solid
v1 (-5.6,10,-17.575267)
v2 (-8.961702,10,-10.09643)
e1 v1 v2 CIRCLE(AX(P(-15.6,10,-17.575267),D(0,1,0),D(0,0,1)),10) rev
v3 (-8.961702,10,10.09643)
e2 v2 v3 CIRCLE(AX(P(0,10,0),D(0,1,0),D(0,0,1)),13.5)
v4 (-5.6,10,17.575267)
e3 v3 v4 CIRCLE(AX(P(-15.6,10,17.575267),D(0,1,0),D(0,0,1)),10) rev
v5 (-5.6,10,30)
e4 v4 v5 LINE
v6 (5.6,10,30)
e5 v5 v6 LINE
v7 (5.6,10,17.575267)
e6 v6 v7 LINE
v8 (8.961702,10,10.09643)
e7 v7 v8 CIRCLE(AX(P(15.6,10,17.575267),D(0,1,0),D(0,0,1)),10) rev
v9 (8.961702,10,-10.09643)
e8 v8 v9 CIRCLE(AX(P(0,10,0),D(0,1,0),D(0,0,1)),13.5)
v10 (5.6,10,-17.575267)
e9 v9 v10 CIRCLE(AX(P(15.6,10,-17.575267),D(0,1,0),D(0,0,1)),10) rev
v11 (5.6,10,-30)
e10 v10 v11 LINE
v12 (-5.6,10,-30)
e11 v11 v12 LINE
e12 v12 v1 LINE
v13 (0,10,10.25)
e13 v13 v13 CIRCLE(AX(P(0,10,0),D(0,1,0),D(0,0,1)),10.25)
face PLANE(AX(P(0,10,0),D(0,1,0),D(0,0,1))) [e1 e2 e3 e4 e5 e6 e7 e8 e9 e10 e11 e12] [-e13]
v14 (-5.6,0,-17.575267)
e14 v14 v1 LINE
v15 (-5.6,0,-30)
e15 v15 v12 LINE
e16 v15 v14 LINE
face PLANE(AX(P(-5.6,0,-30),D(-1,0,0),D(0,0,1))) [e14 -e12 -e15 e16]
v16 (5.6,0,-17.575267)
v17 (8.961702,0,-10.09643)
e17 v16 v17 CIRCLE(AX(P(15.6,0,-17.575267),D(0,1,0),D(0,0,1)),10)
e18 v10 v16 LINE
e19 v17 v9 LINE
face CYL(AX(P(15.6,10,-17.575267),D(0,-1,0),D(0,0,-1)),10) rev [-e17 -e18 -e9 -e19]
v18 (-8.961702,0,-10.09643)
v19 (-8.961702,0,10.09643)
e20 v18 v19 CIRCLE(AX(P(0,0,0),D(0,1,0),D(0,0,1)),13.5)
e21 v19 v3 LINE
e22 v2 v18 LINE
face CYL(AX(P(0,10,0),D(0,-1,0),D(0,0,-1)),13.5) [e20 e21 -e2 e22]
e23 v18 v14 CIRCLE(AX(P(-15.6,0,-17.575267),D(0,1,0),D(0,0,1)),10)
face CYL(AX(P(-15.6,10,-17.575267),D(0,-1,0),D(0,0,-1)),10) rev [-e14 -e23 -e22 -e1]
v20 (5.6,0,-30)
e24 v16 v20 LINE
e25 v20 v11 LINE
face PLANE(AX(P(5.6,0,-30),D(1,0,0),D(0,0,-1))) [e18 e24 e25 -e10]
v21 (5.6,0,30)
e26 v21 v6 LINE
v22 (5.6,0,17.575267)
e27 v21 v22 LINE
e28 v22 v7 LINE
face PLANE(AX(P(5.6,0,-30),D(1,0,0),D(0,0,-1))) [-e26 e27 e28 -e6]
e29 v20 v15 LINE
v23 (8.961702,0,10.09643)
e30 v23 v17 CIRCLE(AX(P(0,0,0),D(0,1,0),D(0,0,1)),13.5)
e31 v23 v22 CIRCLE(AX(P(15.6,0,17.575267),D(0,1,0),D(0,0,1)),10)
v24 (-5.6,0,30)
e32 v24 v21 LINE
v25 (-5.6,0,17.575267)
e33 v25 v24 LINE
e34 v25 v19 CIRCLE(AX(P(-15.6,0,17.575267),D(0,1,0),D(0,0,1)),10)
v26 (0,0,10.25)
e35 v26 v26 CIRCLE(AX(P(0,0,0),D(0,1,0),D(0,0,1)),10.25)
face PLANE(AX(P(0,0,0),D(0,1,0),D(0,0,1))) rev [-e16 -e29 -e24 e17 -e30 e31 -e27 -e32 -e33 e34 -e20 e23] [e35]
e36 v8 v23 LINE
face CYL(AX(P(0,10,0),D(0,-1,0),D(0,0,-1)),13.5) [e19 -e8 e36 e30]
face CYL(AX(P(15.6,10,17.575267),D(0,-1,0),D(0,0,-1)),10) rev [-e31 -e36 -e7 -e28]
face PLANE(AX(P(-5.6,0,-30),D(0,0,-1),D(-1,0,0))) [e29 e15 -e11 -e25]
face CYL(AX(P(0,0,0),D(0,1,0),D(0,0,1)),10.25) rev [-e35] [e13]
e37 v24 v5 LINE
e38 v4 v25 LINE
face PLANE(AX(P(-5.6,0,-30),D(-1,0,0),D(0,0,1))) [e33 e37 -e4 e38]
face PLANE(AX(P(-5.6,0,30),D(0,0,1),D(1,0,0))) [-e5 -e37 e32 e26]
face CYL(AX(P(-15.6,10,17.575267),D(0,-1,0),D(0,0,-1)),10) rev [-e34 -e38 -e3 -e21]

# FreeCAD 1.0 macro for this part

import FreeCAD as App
import Part
import Sketcher


def edges_at(feature, points):
    """Names of the edges that pass closest to the given points."""
    edges = feature.Shape.Edges
    near = lambda p: min(range(len(edges)), key=lambda i: edges[i].distToShape(Part.Vertex(*p))[0])
    return sorted({f"Edge{near(p) + 1}" for p in points})

doc = App.newDocument("Part")
params = doc.addObject("Spreadsheet::Sheet", "Params")
for row, (alias, value) in enumerate([
    ("sketch1_diameter", "27 mm"),
    ("pad1_length", "10 mm"),
    ("sketch2_height", "60 mm"),
    ("sketch2_width", "11.2 mm"),
    ("pad2_length", "10 mm"),
    ("sketch3_diameter", "20.5 mm"),
    ("pocket1_length", "10 mm"),
    ("fillet_radius", "10 mm"),
], start=1):
    params.set(f"A{row}", alias)
    params.set(f"B{row}", "=" + value)
    params.setAlias(f"B{row}", alias)

body = doc.addObject("PartDesign::Body", "Body")

sketch1 = doc.addObject("Sketcher::SketchObject", "Sketch")
body.addObject(sketch1)
sketch1.AttachmentSupport = (doc.XZ_Plane, [""])
sketch1.MapMode = "FlatFace"
sketch1.addGeometry(Part.Circle(App.Vector(0, 0, 0), App.Vector(0, 0, 1), 14), False)
sketch1.addConstraint([
    Sketcher.Constraint("Coincident", 0, 3, -1, 1),
    Sketcher.Constraint("Diameter", 0, 27.0),
])
sketch1.setExpression("Constraints[1]", "Params.sketch1_diameter")
pad1 = doc.addObject("PartDesign::Pad", "Pad")
body.addObject(pad1)
pad1.Profile = sketch1
pad1.setExpression("Length", "Params.pad1_length")
pad1.Reversed = True

sketch2 = doc.addObject("Sketcher::SketchObject", "Sketch001")
body.addObject(sketch2)
sketch2.AttachmentSupport = (doc.XZ_Plane, [""])
sketch2.MapMode = "FlatFace"
sketch2.AttachmentOffset = App.Placement(App.Vector(0, 0, -10), App.Rotation())
sketch2.addGeometry([
    Part.LineSegment(App.Vector(-6, -30, 0), App.Vector(-6, 30, 0)),
    Part.LineSegment(App.Vector(-6, 30, 0), App.Vector(6, 30, 0)),
    Part.LineSegment(App.Vector(6, 30, 0), App.Vector(6, -30, 0)),
    Part.LineSegment(App.Vector(6, -30, 0), App.Vector(-6, -30, 0)),
], False)
sketch2.addConstraint([
    Sketcher.Constraint("Coincident", 0, 2, 1, 1),
    Sketcher.Constraint("Coincident", 1, 2, 2, 1),
    Sketcher.Constraint("Coincident", 2, 2, 3, 1),
    Sketcher.Constraint("Coincident", 3, 2, 0, 1),
    Sketcher.Constraint("Vertical", 0),
    Sketcher.Constraint("Horizontal", 1),
    Sketcher.Constraint("Vertical", 2),
    Sketcher.Constraint("Horizontal", 3),
    Sketcher.Constraint("Symmetric", 0, 2, 2, 2, -1, 1),
    Sketcher.Constraint("DistanceY", 0, 1, 0, 2, 60.0),
    Sketcher.Constraint("DistanceX", 1, 1, 1, 2, 11.2),
])
sketch2.setExpression("Constraints[9]", "Params.sketch2_height")
sketch2.setExpression("Constraints[10]", "Params.sketch2_width")
pad2 = doc.addObject("PartDesign::Pad", "Pad001")
body.addObject(pad2)
pad2.Profile = sketch2
pad2.setExpression("Length", "Params.pad2_length")

sketch3 = doc.addObject("Sketcher::SketchObject", "Sketch002")
body.addObject(sketch3)
sketch3.AttachmentSupport = (doc.XZ_Plane, [""])
sketch3.MapMode = "FlatFace"
sketch3.AttachmentOffset = App.Placement(App.Vector(0, 0, -10), App.Rotation())
sketch3.addGeometry(Part.Circle(App.Vector(0, 0, 0), App.Vector(0, 0, 1), 10), False)
sketch3.addConstraint([
    Sketcher.Constraint("Coincident", 0, 3, -1, 1),
    Sketcher.Constraint("Diameter", 0, 20.5),
])
sketch3.setExpression("Constraints[1]", "Params.sketch3_diameter")
pocket1 = doc.addObject("PartDesign::Pocket", "Pocket")
body.addObject(pocket1)
pocket1.Profile = sketch3
pocket1.setExpression("Length", "Params.pocket1_length")
pocket1.Reversed = True
doc.recompute()

fillet = doc.addObject("PartDesign::Fillet", "Fillet")
body.addObject(fillet)
fillet.Base = (pocket1, edges_at(pocket1, [
    (-5.6, 5, -12.284),
    (-5.6, 5, 12.284),
    (5.6, 5, 12.284),
    (5.6, 5, -12.284),
]))
fillet.setExpression("Radius", "Params.fillet_radius")

doc.recompute()
